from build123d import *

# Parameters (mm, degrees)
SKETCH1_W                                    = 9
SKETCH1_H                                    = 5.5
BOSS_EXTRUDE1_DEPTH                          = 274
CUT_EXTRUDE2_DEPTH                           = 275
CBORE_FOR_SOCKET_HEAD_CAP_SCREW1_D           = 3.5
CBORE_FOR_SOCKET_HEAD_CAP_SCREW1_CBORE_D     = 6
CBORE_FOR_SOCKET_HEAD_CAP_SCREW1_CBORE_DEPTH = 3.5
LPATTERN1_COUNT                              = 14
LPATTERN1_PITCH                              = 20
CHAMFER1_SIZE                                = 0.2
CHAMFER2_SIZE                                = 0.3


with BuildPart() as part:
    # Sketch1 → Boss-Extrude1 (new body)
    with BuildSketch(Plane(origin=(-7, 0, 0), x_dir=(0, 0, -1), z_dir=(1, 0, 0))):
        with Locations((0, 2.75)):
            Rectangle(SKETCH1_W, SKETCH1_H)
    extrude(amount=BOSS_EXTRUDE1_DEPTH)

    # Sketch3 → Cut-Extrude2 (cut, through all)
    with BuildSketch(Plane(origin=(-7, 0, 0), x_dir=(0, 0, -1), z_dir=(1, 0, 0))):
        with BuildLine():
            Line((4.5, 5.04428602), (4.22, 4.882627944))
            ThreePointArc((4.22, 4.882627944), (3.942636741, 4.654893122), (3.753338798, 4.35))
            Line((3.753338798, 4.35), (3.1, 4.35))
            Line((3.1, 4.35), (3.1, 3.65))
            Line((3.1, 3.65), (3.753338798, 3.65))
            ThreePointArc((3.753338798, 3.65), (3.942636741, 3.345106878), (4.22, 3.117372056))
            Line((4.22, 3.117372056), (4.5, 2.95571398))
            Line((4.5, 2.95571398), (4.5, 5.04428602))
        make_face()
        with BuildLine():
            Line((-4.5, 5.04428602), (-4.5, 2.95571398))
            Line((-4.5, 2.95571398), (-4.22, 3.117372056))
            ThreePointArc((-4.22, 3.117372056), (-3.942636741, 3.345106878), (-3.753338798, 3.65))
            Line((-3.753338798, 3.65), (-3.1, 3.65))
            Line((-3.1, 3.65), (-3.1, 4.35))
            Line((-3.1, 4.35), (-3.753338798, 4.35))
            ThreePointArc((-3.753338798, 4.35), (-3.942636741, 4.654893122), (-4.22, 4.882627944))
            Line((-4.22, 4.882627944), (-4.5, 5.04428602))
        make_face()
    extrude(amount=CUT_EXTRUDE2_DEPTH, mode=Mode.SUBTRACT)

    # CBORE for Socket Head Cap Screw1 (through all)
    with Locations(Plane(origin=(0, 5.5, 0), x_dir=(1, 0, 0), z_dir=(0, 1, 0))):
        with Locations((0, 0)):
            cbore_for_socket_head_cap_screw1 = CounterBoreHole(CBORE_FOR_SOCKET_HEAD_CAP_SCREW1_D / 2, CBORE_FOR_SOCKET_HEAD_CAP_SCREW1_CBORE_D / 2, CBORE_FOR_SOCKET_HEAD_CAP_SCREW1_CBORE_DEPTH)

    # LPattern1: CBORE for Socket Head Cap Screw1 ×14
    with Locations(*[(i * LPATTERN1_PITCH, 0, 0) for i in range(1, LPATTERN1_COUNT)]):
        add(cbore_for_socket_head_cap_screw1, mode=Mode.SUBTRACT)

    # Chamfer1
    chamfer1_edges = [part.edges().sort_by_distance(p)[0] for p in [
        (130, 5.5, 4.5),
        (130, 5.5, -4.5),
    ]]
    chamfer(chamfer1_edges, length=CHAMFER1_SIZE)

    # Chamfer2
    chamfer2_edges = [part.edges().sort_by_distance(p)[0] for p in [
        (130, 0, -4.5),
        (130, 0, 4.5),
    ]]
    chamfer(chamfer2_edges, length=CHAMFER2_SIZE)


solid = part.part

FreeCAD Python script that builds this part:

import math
import FreeCAD as App
import Part
import Sketcher

V = App.Vector
Q = App.Units.Quantity


def edges_at(feature, points):
    """Names of the edges that pass closest to the given points."""
    edges = feature.Shape.Edges
    near = lambda p: min(range(len(edges)), key=lambda i: edges[i].distToShape(Part.Vertex(*p))[0])
    return sorted({f"Edge{near(p) + 1}" for p in points})


def add_polygon(sketch, points):
    """Adds a closed chain of lines whose ends are joined by coincident constraints."""
    first, n = sketch.GeometryCount, len(points)
    for a, b in zip(points, points[1:] + points[:1]):
        sketch.addGeometry(Part.LineSegment(App.Vector(*a, 0), App.Vector(*b, 0)), False)
    for i in range(n):
        sketch.addConstraint(Sketcher.Constraint("Coincident", first + i, 2, first + (i + 1) % n, 1))

doc = App.newDocument("Part")
params = doc.addObject("Spreadsheet::Sheet", "Params")
for row, (alias, value) in enumerate([
    ("sketch1_height", "9 mm"),
    ("sketch1_width", "5.5 mm"),
    ("pad1_length", "274 mm"),
    ("sketch2_radius", "1.1 mm"),
    ("sketch2_width", "0.7 mm"),
    ("sketch3_diameter", "3.5 mm"),
    ("hole_diameter", "3.5 mm"),
    ("hole_cbore_diameter", "6 mm"),
    ("hole_cbore_depth", "3.5 mm"),
    ("linearpattern_pitch", "20 mm"),
    ("chamfer_size", "0.2 mm"),
    ("chamfer2_size", "0.3 mm"),
], start=1):
    params.set(f"A{row}", alias)
    params.set(f"B{row}", "=" + value)
    params.setAlias(f"B{row}", alias)

body = doc.addObject("PartDesign::Body", "Body")

sketch1 = doc.addObject("Sketcher::SketchObject", "Sketch")
body.addObject(sketch1)
sketch1.AttachmentSupport = (doc.YZ_Plane, [""])
sketch1.MapMode = "FlatFace"
sketch1.AttachmentOffset = App.Placement(V(0, 0, -7), App.Rotation())
add_polygon(sketch1, [(6, 4), (0, 4), (0, -4), (6, -4)])
sketch1.addConstraint([
    Sketcher.Constraint("Horizontal", 0),
    Sketcher.Constraint("Vertical", 1),
    Sketcher.Constraint("Horizontal", 2),
    Sketcher.Constraint("Vertical", 3),
    Sketcher.Constraint("Symmetric", 0, 2, 1, 2, -1, 1),
    Sketcher.Constraint("DistanceY", 1, 2, 1, 1, Q("9 mm")),
    Sketcher.Constraint("DistanceX", 0, 2, 0, 1, Q("5.5 mm")),
])
sketch1.setExpression("Constraints[9]", "Params.sketch1_height")
sketch1.setExpression("Constraints[10]", "Params.sketch1_width")
pad1 = doc.addObject("PartDesign::Pad", "Pad")
body.addObject(pad1)
pad1.Profile = sketch1
pad1.setExpression("Length", "Params.pad1_length")

sketch2 = doc.addObject("Sketcher::SketchObject", "Sketch001")
body.addObject(sketch2)
sketch2.AttachmentSupport = (doc.YZ_Plane, [""])
sketch2.MapMode = "FlatFace"
sketch2.AttachmentOffset = App.Placement(V(0, 0, -7), App.Rotation())
sketch2.addGeometry([
    Part.LineSegment(V(5.04, -4.5, 0), V(4.88, -4.22, 0)),
    Part.ArcOfCircle(Part.Circle(V(3.93, -4.77, 0), V(0, 0, 1), 1.1), math.radians(30), math.radians(68)),
    Part.LineSegment(V(4.35, -3.75, 0), V(4.35, -3.1, 0)),
    Part.LineSegment(V(4.35, -3.1, 0), V(3.65, -3.1, 0)),
    Part.LineSegment(V(3.65, -3.1, 0), V(3.65, -3.75, 0)),
    Part.ArcOfCircle(Part.Circle(V(4.07, -4.77, 0), V(0, 0, 1), 1.1), math.radians(112), math.radians(150)),
    Part.LineSegment(V(3.12, -4.22, 0), V(2.96, -4.5, 0)),
    Part.LineSegment(V(2.96, -4.5, 0), V(5.04, -4.5, 0)),
    Part.LineSegment(V(5.04, 4.5, 0), V(2.96, 4.5, 0)),
    Part.LineSegment(V(2.96, 4.5, 0), V(3.12, 4.22, 0)),
    Part.ArcOfCircle(Part.Circle(V(4.07, 4.77, 0), V(0, 0, 1), 1.1), math.radians(-150), math.radians(-112)),
    Part.LineSegment(V(3.65, 3.75, 0), V(3.65, 3.1, 0)),
    Part.LineSegment(V(3.65, 3.1, 0), V(4.35, 3.1, 0)),
    Part.LineSegment(V(4.35, 3.1, 0), V(4.35, 3.75, 0)),
    Part.ArcOfCircle(Part.Circle(V(3.93, 4.77, 0), V(0, 0, 1), 1.1), math.radians(-68), math.radians(-30)),
    Part.LineSegment(V(4.88, 4.22, 0), V(5.04, 4.5, 0)),
], False)
sketch2.addConstraint([
    Sketcher.Constraint("Tangent", 0, 2, 1, 1),
    Sketcher.Constraint("Coincident", 1, 2, 2, 1),
    Sketcher.Constraint("Coincident", 2, 2, 3, 1),
    Sketcher.Constraint("Coincident", 3, 2, 4, 1),
    Sketcher.Constraint("Coincident", 4, 2, 5, 1),
    Sketcher.Constraint("Tangent", 5, 2, 6, 1),
    Sketcher.Constraint("Coincident", 6, 2, 7, 1),
    Sketcher.Constraint("Coincident", 7, 2, 0, 1),
    Sketcher.Constraint("Coincident", 8, 2, 9, 1),
    Sketcher.Constraint("Tangent", 9, 2, 10, 1),
    Sketcher.Constraint("Coincident", 10, 2, 11, 1),
    Sketcher.Constraint("Coincident", 11, 2, 12, 1),
    Sketcher.Constraint("Coincident", 12, 2, 13, 1),
    Sketcher.Constraint("Coincident", 13, 2, 14, 1),
    Sketcher.Constraint("Tangent", 14, 2, 15, 1),
    Sketcher.Constraint("Coincident", 15, 2, 8, 1),
    Sketcher.Constraint("Vertical", 2),
    Sketcher.Constraint("Horizontal", 3),
    Sketcher.Constraint("Vertical", 4),
    Sketcher.Constraint("Horizontal", 7),
    Sketcher.Constraint("Horizontal", 8),
    Sketcher.Constraint("Vertical", 11),
    Sketcher.Constraint("Horizontal", 12),
    Sketcher.Constraint("Vertical", 13),
    Sketcher.Constraint("Equal", 1, 5),
    Sketcher.Constraint("Equal", 5, 10),
    Sketcher.Constraint("Equal", 10, 14),
    Sketcher.Constraint("Symmetric", 5, 3, 10, 3, -1),
    Sketcher.Constraint("Symmetric", 1, 3, 14, 3, -1),
    Sketcher.Constraint("Symmetric", 6, 2, 8, 2, -1),
    Sketcher.Constraint("Symmetric", 3, 2, 11, 2, -1),
    Sketcher.Constraint("Parallel", 0, 9),
    Sketcher.Constraint("Parallel", 6, 15),
    Sketcher.Constraint("Horizontal", 1, 3, 5, 3),
    Sketcher.Constraint("Horizontal", 1, 2, 4, 2),
    Sketcher.Constraint("Horizontal", 10, 2, 13, 2),
    Sketcher.Constraint("Radius", 1, Q("1.1 mm")),
    Sketcher.Constraint("Angle", 0, Q("120 deg")),
    Sketcher.Constraint("DistanceX", 3, 2, 3, 1, Q("0.7 mm")),
    Sketcher.Constraint("DistanceY", 2, 2, -1, 1, Q("3.1 mm")),
    Sketcher.Constraint("DistanceY", 6, 2, -1, 1, Q("4.5 mm")),
    Sketcher.Constraint("DistanceX", -1, 1, 1, 3, Q("3.93 mm")),
    Sketcher.Constraint("DistanceY", 1, 3, -1, 1, Q("4.77 mm")),
    Sketcher.Constraint("DistanceX", -1, 1, 5, 3, Q("4.07 mm")),
])
sketch2.setExpression("Constraints[36]", "Params.sketch2_radius")
sketch2.setExpression("Constraints[38]", "Params.sketch2_width")
pocket1 = doc.addObject("PartDesign::Pocket", "Pocket")
body.addObject(pocket1)
pocket1.Profile = sketch2
pocket1.Type = "ThroughAll"
pocket1.Reversed = True

sketch3 = doc.addObject("Sketcher::SketchObject", "Sketch002")
body.addObject(sketch3)
sketch3.AttachmentSupport = (doc.XZ_Plane, [""])
sketch3.MapMode = "FlatFace"
sketch3.AttachmentOffset = App.Placement(V(0, 0, -5.5), App.Rotation())
sketch3.addGeometry(Part.Circle(V(0, 0, 0), V(0, 0, 1), 1.8), False)
sketch3.addConstraint([
    Sketcher.Constraint("Coincident", 0, 3, -1, 1),
    Sketcher.Constraint("Diameter", 0, Q("3.5 mm")),
])
sketch3.setExpression("Constraints[1]", "Params.sketch3_diameter")
doc.recompute()
hole = doc.addObject("PartDesign::Hole", "Hole")
body.addObject(hole)
hole.Profile = sketch3
hole.ThreadType = "None"
hole.setExpression("Diameter", "Params.hole_diameter")
hole.DepthType = "ThroughAll"
hole.HoleCutType = "Counterbore"
hole.setExpression("HoleCutDiameter", "Params.hole_cbore_diameter")
hole.setExpression("HoleCutDepth", "Params.hole_cbore_depth")
hole.Reversed = True
doc.recompute()

linearpattern = doc.addObject("PartDesign::LinearPattern", "LinearPattern")
body.addObject(linearpattern)
linearpattern.Originals = [hole]
linearpattern.Direction = (doc.X_Axis, [""])
linearpattern.Mode = "offset"
linearpattern.setExpression("Offset", "Params.linearpattern_pitch")
linearpattern.Occurrences = 14
body.Tip = linearpattern
doc.recompute()

chamfer = doc.addObject("PartDesign::Chamfer", "Chamfer")
body.addObject(chamfer)
chamfer.Base = (linearpattern, edges_at(linearpattern, [(130, 5.5, 4.5), (130, 5.5, -4.5)]))
chamfer.setExpression("Size", "Params.chamfer_size")
doc.recompute()

chamfer2 = doc.addObject("PartDesign::Chamfer", "Chamfer001")
body.addObject(chamfer2)
chamfer2.Base = (chamfer, edges_at(chamfer, [(130, 0, -4.5), (130, 0, 4.5)]))
chamfer2.setExpression("Size", "Params.chamfer2_size")

doc.recompute()
